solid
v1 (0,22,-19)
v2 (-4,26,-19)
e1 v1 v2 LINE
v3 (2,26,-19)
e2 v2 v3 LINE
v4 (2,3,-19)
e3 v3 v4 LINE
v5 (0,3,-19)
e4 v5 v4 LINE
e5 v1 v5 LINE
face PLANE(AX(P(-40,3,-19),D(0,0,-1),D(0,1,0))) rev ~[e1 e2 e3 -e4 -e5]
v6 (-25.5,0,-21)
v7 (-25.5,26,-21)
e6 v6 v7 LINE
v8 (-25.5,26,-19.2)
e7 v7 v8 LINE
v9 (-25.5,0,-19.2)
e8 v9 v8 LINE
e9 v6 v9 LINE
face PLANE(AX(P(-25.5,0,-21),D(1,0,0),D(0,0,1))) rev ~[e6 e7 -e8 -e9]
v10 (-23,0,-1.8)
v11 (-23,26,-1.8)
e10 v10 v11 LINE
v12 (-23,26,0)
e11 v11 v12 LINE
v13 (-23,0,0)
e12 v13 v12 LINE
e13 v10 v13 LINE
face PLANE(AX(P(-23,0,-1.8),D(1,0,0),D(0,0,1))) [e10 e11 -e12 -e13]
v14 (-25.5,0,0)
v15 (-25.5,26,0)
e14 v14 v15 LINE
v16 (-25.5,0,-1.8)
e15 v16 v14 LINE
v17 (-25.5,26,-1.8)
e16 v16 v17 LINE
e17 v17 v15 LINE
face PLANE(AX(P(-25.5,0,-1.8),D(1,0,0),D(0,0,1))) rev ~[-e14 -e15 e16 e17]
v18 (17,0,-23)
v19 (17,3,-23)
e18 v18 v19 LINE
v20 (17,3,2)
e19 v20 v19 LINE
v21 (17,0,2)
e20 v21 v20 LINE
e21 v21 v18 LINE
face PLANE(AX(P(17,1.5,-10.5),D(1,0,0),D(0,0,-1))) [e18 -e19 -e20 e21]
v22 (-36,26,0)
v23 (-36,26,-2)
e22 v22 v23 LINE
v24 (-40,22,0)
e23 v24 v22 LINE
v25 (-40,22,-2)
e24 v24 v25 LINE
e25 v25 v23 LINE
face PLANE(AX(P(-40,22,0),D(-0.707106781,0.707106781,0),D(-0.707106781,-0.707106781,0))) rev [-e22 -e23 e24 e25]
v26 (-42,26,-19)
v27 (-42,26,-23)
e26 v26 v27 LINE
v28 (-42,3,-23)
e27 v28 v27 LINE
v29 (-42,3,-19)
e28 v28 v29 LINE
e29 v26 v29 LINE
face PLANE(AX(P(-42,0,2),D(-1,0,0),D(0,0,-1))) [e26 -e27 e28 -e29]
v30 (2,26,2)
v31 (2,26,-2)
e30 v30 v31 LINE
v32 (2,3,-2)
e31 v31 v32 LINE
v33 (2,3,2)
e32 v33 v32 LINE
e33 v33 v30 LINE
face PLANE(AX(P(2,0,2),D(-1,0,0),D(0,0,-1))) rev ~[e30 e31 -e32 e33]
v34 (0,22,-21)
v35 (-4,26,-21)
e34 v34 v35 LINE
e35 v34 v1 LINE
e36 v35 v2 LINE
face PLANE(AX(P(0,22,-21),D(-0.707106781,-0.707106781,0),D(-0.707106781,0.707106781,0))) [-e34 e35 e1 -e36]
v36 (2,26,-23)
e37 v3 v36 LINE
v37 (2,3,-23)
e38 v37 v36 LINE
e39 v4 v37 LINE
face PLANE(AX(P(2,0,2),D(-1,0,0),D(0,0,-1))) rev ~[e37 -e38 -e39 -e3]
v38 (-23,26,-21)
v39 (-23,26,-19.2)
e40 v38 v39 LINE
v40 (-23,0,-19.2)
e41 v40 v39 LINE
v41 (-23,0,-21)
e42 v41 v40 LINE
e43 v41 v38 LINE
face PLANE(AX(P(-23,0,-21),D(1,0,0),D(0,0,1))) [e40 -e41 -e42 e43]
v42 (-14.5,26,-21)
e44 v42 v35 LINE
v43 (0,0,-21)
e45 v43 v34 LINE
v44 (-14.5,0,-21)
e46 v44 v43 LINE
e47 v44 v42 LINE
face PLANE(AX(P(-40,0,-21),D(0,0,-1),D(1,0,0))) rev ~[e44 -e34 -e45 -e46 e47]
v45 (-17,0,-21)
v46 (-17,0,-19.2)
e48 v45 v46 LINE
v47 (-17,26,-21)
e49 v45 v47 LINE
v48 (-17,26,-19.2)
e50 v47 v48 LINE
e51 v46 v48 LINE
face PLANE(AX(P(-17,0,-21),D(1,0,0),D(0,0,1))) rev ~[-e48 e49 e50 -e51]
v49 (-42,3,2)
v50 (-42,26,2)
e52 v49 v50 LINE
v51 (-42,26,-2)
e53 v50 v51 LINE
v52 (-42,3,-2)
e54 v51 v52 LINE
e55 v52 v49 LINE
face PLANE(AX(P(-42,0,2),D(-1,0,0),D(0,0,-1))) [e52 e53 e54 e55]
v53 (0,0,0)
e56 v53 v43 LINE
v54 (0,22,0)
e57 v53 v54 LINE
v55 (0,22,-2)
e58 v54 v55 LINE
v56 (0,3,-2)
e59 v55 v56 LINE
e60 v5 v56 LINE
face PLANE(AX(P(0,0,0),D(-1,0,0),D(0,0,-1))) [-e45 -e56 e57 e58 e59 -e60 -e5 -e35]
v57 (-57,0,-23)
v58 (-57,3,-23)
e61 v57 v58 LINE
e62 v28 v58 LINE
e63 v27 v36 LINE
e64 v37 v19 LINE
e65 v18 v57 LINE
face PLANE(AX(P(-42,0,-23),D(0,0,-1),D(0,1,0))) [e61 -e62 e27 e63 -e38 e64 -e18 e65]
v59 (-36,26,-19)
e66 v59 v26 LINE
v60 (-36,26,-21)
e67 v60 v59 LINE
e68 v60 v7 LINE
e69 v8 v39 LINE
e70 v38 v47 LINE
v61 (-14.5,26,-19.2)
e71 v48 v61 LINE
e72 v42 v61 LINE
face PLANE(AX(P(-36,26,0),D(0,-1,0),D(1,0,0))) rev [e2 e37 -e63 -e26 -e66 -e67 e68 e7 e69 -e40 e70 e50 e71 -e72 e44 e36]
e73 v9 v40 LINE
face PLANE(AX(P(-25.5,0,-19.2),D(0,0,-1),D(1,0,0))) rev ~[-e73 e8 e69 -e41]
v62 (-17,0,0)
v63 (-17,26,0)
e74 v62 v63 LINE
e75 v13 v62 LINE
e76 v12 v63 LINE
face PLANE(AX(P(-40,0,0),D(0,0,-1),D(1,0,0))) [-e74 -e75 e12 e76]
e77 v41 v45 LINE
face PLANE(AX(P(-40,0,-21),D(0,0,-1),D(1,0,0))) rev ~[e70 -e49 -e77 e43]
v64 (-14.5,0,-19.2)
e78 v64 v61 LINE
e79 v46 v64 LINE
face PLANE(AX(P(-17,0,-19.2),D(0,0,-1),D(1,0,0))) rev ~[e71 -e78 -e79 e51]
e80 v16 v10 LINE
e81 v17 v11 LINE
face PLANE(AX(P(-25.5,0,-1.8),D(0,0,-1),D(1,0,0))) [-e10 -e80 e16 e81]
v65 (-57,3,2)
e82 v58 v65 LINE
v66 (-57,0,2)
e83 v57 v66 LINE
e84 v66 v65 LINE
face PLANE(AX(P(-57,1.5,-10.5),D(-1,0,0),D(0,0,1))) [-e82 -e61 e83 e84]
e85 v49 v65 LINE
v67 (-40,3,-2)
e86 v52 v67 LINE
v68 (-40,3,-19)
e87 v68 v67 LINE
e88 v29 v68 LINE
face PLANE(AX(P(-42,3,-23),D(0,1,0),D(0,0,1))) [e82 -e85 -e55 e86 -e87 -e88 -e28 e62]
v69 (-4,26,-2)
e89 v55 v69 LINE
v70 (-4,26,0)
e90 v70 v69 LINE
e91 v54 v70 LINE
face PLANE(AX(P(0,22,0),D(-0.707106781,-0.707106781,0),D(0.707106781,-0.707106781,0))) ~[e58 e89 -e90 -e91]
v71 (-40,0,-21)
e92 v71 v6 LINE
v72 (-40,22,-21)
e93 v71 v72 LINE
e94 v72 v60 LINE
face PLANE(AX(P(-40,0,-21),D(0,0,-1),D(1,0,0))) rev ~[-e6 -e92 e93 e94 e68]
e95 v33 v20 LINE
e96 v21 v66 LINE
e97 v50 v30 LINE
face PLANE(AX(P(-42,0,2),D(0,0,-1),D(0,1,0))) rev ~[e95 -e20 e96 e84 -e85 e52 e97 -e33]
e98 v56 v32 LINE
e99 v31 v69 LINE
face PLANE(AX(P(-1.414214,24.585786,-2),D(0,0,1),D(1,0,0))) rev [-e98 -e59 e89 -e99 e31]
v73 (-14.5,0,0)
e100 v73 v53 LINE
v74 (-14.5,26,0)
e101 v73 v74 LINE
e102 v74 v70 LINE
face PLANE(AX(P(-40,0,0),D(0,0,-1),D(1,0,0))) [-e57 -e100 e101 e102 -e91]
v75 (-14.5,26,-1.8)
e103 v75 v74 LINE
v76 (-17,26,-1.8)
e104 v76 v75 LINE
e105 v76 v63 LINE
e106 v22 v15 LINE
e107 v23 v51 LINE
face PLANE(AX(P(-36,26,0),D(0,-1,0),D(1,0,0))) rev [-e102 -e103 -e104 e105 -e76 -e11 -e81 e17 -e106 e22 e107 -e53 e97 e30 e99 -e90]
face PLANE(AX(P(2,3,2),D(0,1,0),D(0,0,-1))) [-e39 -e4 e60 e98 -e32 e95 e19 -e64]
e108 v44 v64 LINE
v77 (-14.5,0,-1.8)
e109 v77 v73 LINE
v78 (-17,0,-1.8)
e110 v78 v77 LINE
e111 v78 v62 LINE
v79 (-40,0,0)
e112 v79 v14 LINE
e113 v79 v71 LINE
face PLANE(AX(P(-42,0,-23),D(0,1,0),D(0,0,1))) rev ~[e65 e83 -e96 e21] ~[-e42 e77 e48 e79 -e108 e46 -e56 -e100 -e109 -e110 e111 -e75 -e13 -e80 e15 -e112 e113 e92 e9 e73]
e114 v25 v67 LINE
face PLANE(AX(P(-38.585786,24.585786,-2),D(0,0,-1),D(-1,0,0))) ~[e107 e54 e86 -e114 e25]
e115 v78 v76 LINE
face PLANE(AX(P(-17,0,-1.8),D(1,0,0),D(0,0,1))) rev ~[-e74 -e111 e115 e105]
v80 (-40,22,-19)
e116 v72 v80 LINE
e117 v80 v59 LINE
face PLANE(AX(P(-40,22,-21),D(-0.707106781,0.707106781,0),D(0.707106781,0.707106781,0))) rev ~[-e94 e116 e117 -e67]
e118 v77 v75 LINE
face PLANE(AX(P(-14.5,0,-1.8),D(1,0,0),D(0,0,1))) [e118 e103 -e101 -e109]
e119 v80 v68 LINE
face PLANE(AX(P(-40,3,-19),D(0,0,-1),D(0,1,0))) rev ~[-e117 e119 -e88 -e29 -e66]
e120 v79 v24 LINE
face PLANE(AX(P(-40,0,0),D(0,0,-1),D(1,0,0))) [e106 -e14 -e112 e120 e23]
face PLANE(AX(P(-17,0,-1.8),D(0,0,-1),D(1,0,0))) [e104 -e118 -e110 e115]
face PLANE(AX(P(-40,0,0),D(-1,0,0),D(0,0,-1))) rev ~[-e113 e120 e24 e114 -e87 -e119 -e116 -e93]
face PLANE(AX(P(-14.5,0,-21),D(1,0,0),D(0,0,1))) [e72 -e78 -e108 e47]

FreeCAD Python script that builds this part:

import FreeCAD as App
import Part
import Sketcher

V = App.Vector


def add_polygon(sketch, points):
    """Adds a closed chain of lines whose ends are joined by coincident constraints."""
    first, n = sketch.GeometryCount, len(points)
    for a, b in zip(points, points[1:] + points[:1]):
        sketch.addGeometry(Part.LineSegment(App.Vector(*a, 0), App.Vector(*b, 0)), False)
    for i in range(n):
        sketch.addConstraint(Sketcher.Constraint("Coincident", first + i, 2, first + (i + 1) % n, 1))

doc = App.newDocument("Part")
body = doc.addObject("PartDesign::Body", "Body")

sketch1 = body.newObject("Sketcher::SketchObject", "Sketch")
sketch1.AttachmentSupport = (doc.getObject("XZ_Plane"), [""])
sketch1.MapMode = "FlatFace"
add_polygon(sketch1, [(-42, -23), (-42, 2), (2, 2), (2, -23)])
add_polygon(sketch1, [(0, 0), (-40, 0), (-40, -21), (0, -21)])
sketch1.addConstraint(Sketcher.Constraint("Vertical", 0))
sketch1.addConstraint(Sketcher.Constraint("Horizontal", 1))
sketch1.addConstraint(Sketcher.Constraint("Vertical", 2))
sketch1.addConstraint(Sketcher.Constraint("Horizontal", 3))
sketch1.addConstraint(Sketcher.Constraint("Horizontal", 4))
sketch1.addConstraint(Sketcher.Constraint("Vertical", 5))
sketch1.addConstraint(Sketcher.Constraint("Horizontal", 6))
sketch1.addConstraint(Sketcher.Constraint("Vertical", 7))
sketch1.addConstraint(Sketcher.Constraint("Coincident", 7, 2, -1, 1))
sketch1.addConstraint(Sketcher.Constraint("DistanceX", 1, 1, 1, 2, 44.0))
sketch1.addConstraint(Sketcher.Constraint("DistanceX", 4, 2, 4, 1, 40.0))
sketch1.addConstraint(Sketcher.Constraint("DistanceY", 0, 1, 0, 2, 25.0))
sketch1.addConstraint(Sketcher.Constraint("DistanceY", 5, 2, 5, 1, 21.0))
sketch1.addConstraint(Sketcher.Constraint("DistanceX", 0, 2, -1, 1, 42.0))
sketch1.addConstraint(Sketcher.Constraint("DistanceY", -1, 1, 0, 2, 2.0))
pad1 = body.newObject("PartDesign::Pad", "Pad")
pad1.Profile = sketch1
pad1.Length = 26
pad1.Reversed = True

sketch2 = body.newObject("Sketcher::SketchObject", "Sketch001")
sketch2.AttachmentSupport = (doc.getObject("XY_Plane"), [""])
sketch2.MapMode = "FlatFace"
sketch2.AttachmentOffset = App.Placement(V(0, 0, -21), App.Rotation())
add_polygon(sketch2, [(-40, 22), (-36, 26), (-40, 26)])
add_polygon(sketch2, [(0, 22), (0, 26), (-4, 26)])
sketch2.addConstraint(Sketcher.Constraint("Horizontal", 1))
sketch2.addConstraint(Sketcher.Constraint("Vertical", 2))
sketch2.addConstraint(Sketcher.Constraint("Vertical", 3))
sketch2.addConstraint(Sketcher.Constraint("Horizontal", 4))
sketch2.addConstraint(Sketcher.Constraint("PointOnObject", 3, 2, -2))
sketch2.addConstraint(Sketcher.Constraint("Perpendicular", 0, 5))
sketch2.addConstraint(Sketcher.Constraint("Horizontal", 1, 2, 3, 2))
sketch2.addConstraint(Sketcher.Constraint("Horizontal", 2, 2, 5, 2))
sketch2.addConstraint(Sketcher.Constraint("Equal", 1, 4))
sketch2.addConstraint(Sketcher.Constraint("DistanceX", 1, 2, 1, 1, 4.0))
sketch2.addConstraint(Sketcher.Constraint("DistanceX", 0, 2, -1, 1, 36.0))
sketch2.addConstraint(Sketcher.Constraint("DistanceY", -1, 1, 0, 2, 26.0))
pad2 = body.newObject("PartDesign::Pad", "Pad001")
pad2.Profile = sketch2
pad2.Length = 2
doc.recompute()

datumplane = body.newObject("PartDesign::Plane", "DatumPlane")
datumplane.AttachmentSupport = (doc.getObject("XY_Plane"), [""])
datumplane.MapMode = "FlatFace"
datumplane.AttachmentOffset = App.Placement(V(0, 0, -10.5), App.Rotation())
mirrored = body.newObject("PartDesign::Mirrored", "Mirrored")
mirrored.Originals = [pad2]
mirrored.MirrorPlane = (datumplane, [""])
body.Tip = mirrored

sketch3 = body.newObject("Sketcher::SketchObject", "Sketch002")
sketch3.AttachmentSupport = (doc.getObject("YZ_Plane"), [""])
sketch3.MapMode = "FlatFace"
sketch3.AttachmentOffset = App.Placement(V(0, 0, -40), App.Rotation())
add_polygon(sketch3, [(26, -2), (3, -2), (3, -19), (26, -19)])
sketch3.addConstraint(Sketcher.Constraint("Horizontal", 0))
sketch3.addConstraint(Sketcher.Constraint("Vertical", 1))
sketch3.addConstraint(Sketcher.Constraint("Horizontal", 2))
sketch3.addConstraint(Sketcher.Constraint("Vertical", 3))
sketch3.addConstraint(Sketcher.Constraint("DistanceX", 0, 2, 0, 1, 23.0))
sketch3.addConstraint(Sketcher.Constraint("DistanceY", 1, 2, 1, 1, 17.0))
sketch3.addConstraint(Sketcher.Constraint("DistanceX", -1, 1, 0, 2, 3.0))
sketch3.addConstraint(Sketcher.Constraint("DistanceY", 0, 2, -1, 1, 2.0))
pocket1 = body.newObject("PartDesign::Pocket", "Pocket")
pocket1.Profile = sketch3
pocket1.Length = 114
pocket1.Midplane = True

sketch4 = body.newObject("Sketcher::SketchObject", "Sketch003")
sketch4.AttachmentSupport = (doc.getObject("XZ_Plane"), [""])
sketch4.MapMode = "FlatFace"
add_polygon(sketch4, [(-25.5, 0), (-25.5, -1.8), (-23, -1.8), (-23, 0)])
add_polygon(sketch4, [(-17, 0), (-17, -1.8), (-14.5, -1.8), (-14.5, 0)])
add_polygon(sketch4, [(-17, -19.2), (-17, -21), (-14.5, -21), (-14.5, -19.2)])
add_polygon(sketch4, [(-25.5, -19.2), (-25.5, -21), (-23, -21), (-23, -19.2)])
sketch4.addConstraint(Sketcher.Constraint("Vertical", 0))
sketch4.addConstraint(Sketcher.Constraint("Horizontal", 1))
sketch4.addConstraint(Sketcher.Constraint("Vertical", 2))
sketch4.addConstraint(Sketcher.Constraint("Horizontal", 3))
sketch4.addConstraint(Sketcher.Constraint("Vertical", 4))
sketch4.addConstraint(Sketcher.Constraint("Horizontal", 5))
sketch4.addConstraint(Sketcher.Constraint("Vertical", 6))
sketch4.addConstraint(Sketcher.Constraint("Horizontal", 7))
sketch4.addConstraint(Sketcher.Constraint("Vertical", 8))
sketch4.addConstraint(Sketcher.Constraint("Horizontal", 9))
sketch4.addConstraint(Sketcher.Constraint("Vertical", 10))
sketch4.addConstraint(Sketcher.Constraint("Horizontal", 11))
sketch4.addConstraint(Sketcher.Constraint("Vertical", 12))
sketch4.addConstraint(Sketcher.Constraint("Horizontal", 13))
sketch4.addConstraint(Sketcher.Constraint("Vertical", 14))
sketch4.addConstraint(Sketcher.Constraint("Horizontal", 15))
sketch4.addConstraint(Sketcher.Constraint("PointOnObject", 2, 2, -1))
sketch4.addConstraint(Sketcher.Constraint("PointOnObject", 6, 2, -1))
sketch4.addConstraint(Sketcher.Constraint("Horizontal", 1, 2, 4, 2))
sketch4.addConstraint(Sketcher.Constraint("Horizontal", 9, 2, 12, 2))
sketch4.addConstraint(Sketcher.Constraint("Horizontal", 11, 2, 14, 2))
sketch4.addConstraint(Sketcher.Constraint("Vertical", 7, 2, 8, 2))
sketch4.addConstraint(Sketcher.Constraint("Vertical", 6, 2, 9, 2))
sketch4.addConstraint(Sketcher.Constraint("Vertical", 3, 2, 12, 2))
sketch4.addConstraint(Sketcher.Constraint("Vertical", 2, 2, 13, 2))
sketch4.addConstraint(Sketcher.Constraint("Equal", 3, 5))
sketch4.addConstraint(Sketcher.Constraint("Equal", 6, 8))
sketch4.addConstraint(Sketcher.Constraint("DistanceX", 1, 1, 1, 2, 2.5))
sketch4.addConstraint(Sketcher.Constraint("DistanceY", 0, 2, 0, 1, 1.8))
sketch4.addConstraint(Sketcher.Constraint("DistanceX", 1, 2, -1, 1, 23.0))
sketch4.addConstraint(Sketcher.Constraint("DistanceX", 4, 2, -1, 1, 17.0))
sketch4.addConstraint(Sketcher.Constraint("DistanceY", 8, 2, -1, 1, 21.0))
pad3 = body.newObject("PartDesign::Pad", "Pad002")
pad3.Profile = sketch4
pad3.Length = 26
pad3.Reversed = True

sketch5 = body.newObject("Sketcher::SketchObject", "Sketch004")
sketch5.AttachmentSupport = (doc.getObject("YZ_Plane"), [""])
sketch5.MapMode = "FlatFace"
sketch5.AttachmentOffset = App.Placement(V(0, 0, 2), App.Rotation())
add_polygon(sketch5, [(3, 2), (0, 2), (0, -23), (3, -23)])
sketch5.addConstraint(Sketcher.Constraint("Horizontal", 0))
sketch5.addConstraint(Sketcher.Constraint("Vertical", 1))
sketch5.addConstraint(Sketcher.Constraint("Horizontal", 2))
sketch5.addConstraint(Sketcher.Constraint("Vertical", 3))
sketch5.addConstraint(Sketcher.Constraint("PointOnObject", 0, 2, -2))
sketch5.addConstraint(Sketcher.Constraint("DistanceX", 0, 2, 0, 1, 3.0))
sketch5.addConstraint(Sketcher.Constraint("DistanceY", 1, 2, 1, 1, 25.0))
sketch5.addConstraint(Sketcher.Constraint("DistanceY", -1, 1, 0, 2, 2.0))
pad4 = body.newObject("PartDesign::Pad", "Pad003")
pad4.Profile = sketch5
pad4.Length = 15

sketch6 = body.newObject("Sketcher::SketchObject", "Sketch005")
sketch6.AttachmentSupport = (doc.getObject("YZ_Plane"), [""])
sketch6.MapMode = "FlatFace"
sketch6.AttachmentOffset = App.Placement(V(0, 0, -42), App.Rotation())
add_polygon(sketch6, [(3, -23), (0, -23), (0, 2), (3, 2)])
sketch6.addConstraint(Sketcher.Constraint("Horizontal", 0))
sketch6.addConstraint(Sketcher.Constraint("Vertical", 1))
sketch6.addConstraint(Sketcher.Constraint("Horizontal", 2))
sketch6.addConstraint(Sketcher.Constraint("Vertical", 3))
sketch6.addConstraint(Sketcher.Constraint("PointOnObject", 0, 2, -2))
sketch6.addConstraint(Sketcher.Constraint("DistanceX", 0, 2, 0, 1, 3.0))
sketch6.addConstraint(Sketcher.Constraint("DistanceY", 1, 1, 1, 2, 25.0))
sketch6.addConstraint(Sketcher.Constraint("DistanceY", 0, 2, -1, 1, 23.0))
pad5 = body.newObject("PartDesign::Pad", "Pad004")
pad5.Profile = sketch6
pad5.Length = 15
pad5.Reversed = True

doc.recompute()
